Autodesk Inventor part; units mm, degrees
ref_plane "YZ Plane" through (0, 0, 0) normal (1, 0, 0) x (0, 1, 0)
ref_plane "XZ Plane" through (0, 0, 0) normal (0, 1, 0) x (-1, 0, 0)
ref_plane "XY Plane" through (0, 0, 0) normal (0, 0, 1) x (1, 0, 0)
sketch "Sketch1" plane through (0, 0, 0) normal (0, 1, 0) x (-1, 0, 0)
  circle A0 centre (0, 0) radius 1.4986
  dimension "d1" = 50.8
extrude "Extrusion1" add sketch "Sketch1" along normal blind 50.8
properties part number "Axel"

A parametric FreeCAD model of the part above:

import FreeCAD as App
import Part
import Sketcher
from FreeCAD import Vector
Q = App.Units.Quantity

doc = App.newDocument("Part")
body = doc.addObject("PartDesign::Body", "Body")

# Sketch on XZ plane
sketch1 = body.newObject("Sketcher::SketchObject", "Sketch")
sketch1.AttachmentSupport = (doc.getObject("XZ_Plane"), [""])
sketch1.MapMode = "FlatFace"
sketch1.addGeometry(Part.Circle(Vector(0, 0, 0), Vector(0, 0, 1), 1.4986), False)
sketch1.addConstraint([
    Sketcher.Constraint("Coincident", 0, 3, -1, 1),
    Sketcher.Constraint("Diameter", 0, Q("0.118 in")),
])
pad1 = body.newObject("PartDesign::Pad", "Pad")
pad1.Profile = sketch1
pad1.Length = Q("2 in")
pad1.Reversed = True

doc.recompute()
